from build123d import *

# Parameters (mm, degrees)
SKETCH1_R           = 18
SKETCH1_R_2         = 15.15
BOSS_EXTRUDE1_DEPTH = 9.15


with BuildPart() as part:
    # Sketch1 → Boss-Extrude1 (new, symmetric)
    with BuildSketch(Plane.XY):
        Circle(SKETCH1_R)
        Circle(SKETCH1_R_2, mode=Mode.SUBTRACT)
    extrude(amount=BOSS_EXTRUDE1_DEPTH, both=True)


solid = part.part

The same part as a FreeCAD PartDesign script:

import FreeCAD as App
import Part
import Sketcher
Q = App.Units.Quantity

doc = App.newDocument("Part")
params = doc.addObject("Spreadsheet::Sheet", "Params")
for row, (alias, value) in enumerate([
    ("sketch1_diameter", "36 mm"),
    ("sketch1_diameter2", "30.3 mm"),
    ("pad1_length", "18.3 mm"),
], start=1):
    params.set(f"A{row}", alias)
    params.set(f"B{row}", "=" + value)
    params.setAlias(f"B{row}", alias)

body = doc.addObject("PartDesign::Body", "Body")

# Sketch on XY plane
sketch1 = body.newObject("Sketcher::SketchObject", "Sketch")
sketch1.AttachmentSupport = (doc.getObject("XY_Plane"), [""])
sketch1.MapMode = "FlatFace"
sketch1.addGeometry(Part.Circle(App.Vector(0, 0, 0), App.Vector(0, 0, 1), 18), False)
sketch1.addGeometry(Part.Circle(App.Vector(0, 0, 0), App.Vector(0, 0, 1), 15.15), False)
sketch1.addConstraint(Sketcher.Constraint("Coincident", 0, 3, -1, 1))
sketch1.addConstraint(Sketcher.Constraint("Coincident", 1, 3, -1, 1))
sketch1.addConstraint(Sketcher.Constraint("Diameter", 0, Q("36 mm")))
sketch1.addConstraint(Sketcher.Constraint("Diameter", 1, Q("30.3 mm")))
sketch1.setExpression("Constraints[2]", "Params.sketch1_diameter")
sketch1.setExpression("Constraints[3]", "Params.sketch1_diameter2")
pad1 = body.newObject("PartDesign::Pad", "Pad")
pad1.Profile = sketch1
pad1.setExpression("Length", "Params.pad1_length")
pad1.Midplane = True

doc.recompute()
